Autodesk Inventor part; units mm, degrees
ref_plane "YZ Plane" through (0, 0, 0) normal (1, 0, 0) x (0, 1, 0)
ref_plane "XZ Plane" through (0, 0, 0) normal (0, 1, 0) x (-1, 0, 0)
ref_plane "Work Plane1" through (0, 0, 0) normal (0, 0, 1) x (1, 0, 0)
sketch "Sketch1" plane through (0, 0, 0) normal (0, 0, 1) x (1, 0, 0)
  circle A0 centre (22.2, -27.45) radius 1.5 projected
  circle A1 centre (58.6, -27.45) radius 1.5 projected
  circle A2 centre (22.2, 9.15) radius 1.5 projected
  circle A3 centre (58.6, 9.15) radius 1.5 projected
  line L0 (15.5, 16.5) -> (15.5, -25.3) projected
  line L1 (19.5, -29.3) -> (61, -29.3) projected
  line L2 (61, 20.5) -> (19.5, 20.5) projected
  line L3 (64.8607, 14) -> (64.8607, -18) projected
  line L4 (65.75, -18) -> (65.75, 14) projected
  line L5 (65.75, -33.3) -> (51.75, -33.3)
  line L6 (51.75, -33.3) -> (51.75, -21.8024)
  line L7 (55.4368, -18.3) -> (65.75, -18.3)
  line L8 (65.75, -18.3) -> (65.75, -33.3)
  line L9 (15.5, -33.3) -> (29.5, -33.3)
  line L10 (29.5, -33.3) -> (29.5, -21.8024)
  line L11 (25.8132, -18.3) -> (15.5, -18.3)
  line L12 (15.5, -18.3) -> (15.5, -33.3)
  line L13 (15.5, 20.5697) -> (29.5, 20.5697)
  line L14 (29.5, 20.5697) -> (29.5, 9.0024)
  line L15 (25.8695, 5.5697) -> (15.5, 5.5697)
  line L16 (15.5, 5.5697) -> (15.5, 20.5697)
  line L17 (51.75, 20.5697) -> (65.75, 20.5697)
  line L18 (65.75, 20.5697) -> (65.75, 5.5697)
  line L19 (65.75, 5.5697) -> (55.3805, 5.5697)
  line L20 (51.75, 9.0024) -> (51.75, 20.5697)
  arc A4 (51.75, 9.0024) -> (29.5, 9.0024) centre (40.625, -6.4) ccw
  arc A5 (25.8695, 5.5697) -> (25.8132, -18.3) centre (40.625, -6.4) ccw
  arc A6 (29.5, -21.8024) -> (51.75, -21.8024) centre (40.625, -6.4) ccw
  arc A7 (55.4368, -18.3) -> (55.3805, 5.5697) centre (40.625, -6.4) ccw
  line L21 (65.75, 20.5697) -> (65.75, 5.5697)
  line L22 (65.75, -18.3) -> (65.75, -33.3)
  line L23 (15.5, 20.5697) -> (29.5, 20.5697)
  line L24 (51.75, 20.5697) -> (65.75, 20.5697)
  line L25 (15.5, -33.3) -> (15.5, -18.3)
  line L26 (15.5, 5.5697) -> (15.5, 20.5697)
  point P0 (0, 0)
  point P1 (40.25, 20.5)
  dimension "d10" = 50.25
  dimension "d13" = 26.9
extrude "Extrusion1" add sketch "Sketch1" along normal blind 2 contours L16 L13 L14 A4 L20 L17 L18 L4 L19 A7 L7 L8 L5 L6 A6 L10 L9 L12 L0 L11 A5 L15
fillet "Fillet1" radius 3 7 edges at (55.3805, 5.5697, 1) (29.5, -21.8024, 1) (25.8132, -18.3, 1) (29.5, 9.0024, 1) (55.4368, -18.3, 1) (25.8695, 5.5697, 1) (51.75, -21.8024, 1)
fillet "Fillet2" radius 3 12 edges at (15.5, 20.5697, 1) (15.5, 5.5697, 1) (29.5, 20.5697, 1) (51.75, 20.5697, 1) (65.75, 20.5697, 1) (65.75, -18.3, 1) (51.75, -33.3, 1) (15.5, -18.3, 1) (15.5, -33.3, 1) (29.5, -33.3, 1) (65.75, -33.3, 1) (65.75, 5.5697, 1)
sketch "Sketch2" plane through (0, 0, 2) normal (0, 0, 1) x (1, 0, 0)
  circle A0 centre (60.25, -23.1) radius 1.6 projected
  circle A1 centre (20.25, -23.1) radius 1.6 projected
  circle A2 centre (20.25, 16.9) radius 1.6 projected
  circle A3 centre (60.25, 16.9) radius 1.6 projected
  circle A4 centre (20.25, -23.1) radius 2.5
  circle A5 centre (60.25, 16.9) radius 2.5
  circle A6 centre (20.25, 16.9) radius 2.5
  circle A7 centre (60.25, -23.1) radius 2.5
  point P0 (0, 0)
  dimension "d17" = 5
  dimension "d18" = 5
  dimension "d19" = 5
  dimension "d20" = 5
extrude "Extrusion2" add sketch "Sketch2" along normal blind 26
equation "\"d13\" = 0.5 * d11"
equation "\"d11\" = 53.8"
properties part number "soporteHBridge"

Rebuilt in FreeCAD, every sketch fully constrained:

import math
import FreeCAD as App
import Part
import Sketcher

V = App.Vector
Q = App.Units.Quantity


def edges_at(feature, points):
    """Names of the edges that pass closest to the given points."""
    edges = feature.Shape.Edges
    near = lambda p: min(range(len(edges)), key=lambda i: edges[i].distToShape(Part.Vertex(*p))[0])
    return sorted({f"Edge{near(p) + 1}" for p in points})

doc = App.newDocument("Part")
params = doc.addObject("Spreadsheet::Sheet", "Params")
for row, (alias, value) in enumerate([
    ("sketch1_diameter", "3 mm"),
    ("sketch1_radius", "19 mm"),
    ("sketch1_width", "14 mm"),
    ("sketch1_height", "15 mm"),
    ("pad1_length", "2 mm"),
    ("fillet_radius", "3 mm"),
    ("fillet2_radius", "3 mm"),
    ("sketch2_diameter", "5 mm"),
    ("sketch2_diameter2", "3.2 mm"),
    ("pad2_length", "26 mm"),
], start=1):
    params.set(f"A{row}", alias)
    params.set(f"B{row}", "=" + value)
    params.setAlias(f"B{row}", alias)

body = doc.addObject("PartDesign::Body", "Body")

sketch1 = doc.addObject("Sketcher::SketchObject", "Sketch")
body.addObject(sketch1)
sketch1.AttachmentSupport = (doc.XY_Plane, [""])
sketch1.MapMode = "FlatFace"
sketch1.addGeometry([
    Part.LineSegment(V(15.5, 20.6, 0), V(15.5, 5.6, 0)),
    Part.LineSegment(V(15.5, 5.6, 0), V(25.9, 5.6, 0)),
    Part.ArcOfCircle(Part.Circle(V(40.6, -6.4, 0), V(0, 0, 1), 19), math.radians(141), math.radians(219)),
    Part.LineSegment(V(25.8, -18.3, 0), V(15.5, -18.3, 0)),
    Part.LineSegment(V(15.5, -18.3, 0), V(15.5, -33.3, 0)),
    Part.LineSegment(V(15.5, -33.3, 0), V(29.5, -33.3, 0)),
    Part.LineSegment(V(29.5, -33.3, 0), V(29.5, -21.8, 0)),
    Part.ArcOfCircle(Part.Circle(V(40.6, -6.4, 0), V(0, 0, 1), 19), math.radians(-126), math.radians(-54)),
    Part.LineSegment(V(51.8, -21.8, 0), V(51.8, -33.3, 0)),
    Part.LineSegment(V(51.8, -33.3, 0), V(65.8, -33.3, 0)),
    Part.LineSegment(V(65.8, -33.3, 0), V(65.8, -18.3, 0)),
    Part.LineSegment(V(65.8, -18.3, 0), V(55.4, -18.3, 0)),
    Part.ArcOfCircle(Part.Circle(V(40.6, -6.4, 0), V(0, 0, 1), 19), math.radians(-39), math.radians(39)),
    Part.LineSegment(V(55.4, 5.6, 0), V(65.8, 5.6, 0)),
    Part.LineSegment(V(65.8, 5.6, 0), V(65.8, 20.6, 0)),
    Part.LineSegment(V(65.8, 20.6, 0), V(51.8, 20.6, 0)),
    Part.LineSegment(V(51.8, 20.6, 0), V(51.8, 9, 0)),
    Part.ArcOfCircle(Part.Circle(V(40.6, -6.4, 0), V(0, 0, 1), 19), math.radians(54), math.radians(126)),
    Part.LineSegment(V(29.5, 9, 0), V(29.5, 20.6, 0)),
    Part.LineSegment(V(29.5, 20.6, 0), V(15.5, 20.6, 0)),
    Part.Circle(V(22.2, -27.4, 0), V(0, 0, 1), 1.5),
    Part.Circle(V(58.6, -27.4, 0), V(0, 0, 1), 1.5),
    Part.Circle(V(22.2, 9.2, 0), V(0, 0, 1), 1.5),
    Part.Circle(V(58.6, 9.2, 0), V(0, 0, 1), 1.5),
], False)
sketch1.addConstraint([
    Sketcher.Constraint("Coincident", 0, 2, 1, 1),
    Sketcher.Constraint("Coincident", 1, 2, 2, 1),
    Sketcher.Constraint("Coincident", 2, 2, 3, 1),
    Sketcher.Constraint("Coincident", 3, 2, 4, 1),
    Sketcher.Constraint("Coincident", 4, 2, 5, 1),
    Sketcher.Constraint("Coincident", 5, 2, 6, 1),
    Sketcher.Constraint("Coincident", 6, 2, 7, 1),
    Sketcher.Constraint("Coincident", 7, 2, 8, 1),
    Sketcher.Constraint("Coincident", 8, 2, 9, 1),
    Sketcher.Constraint("Coincident", 9, 2, 10, 1),
    Sketcher.Constraint("Coincident", 10, 2, 11, 1),
    Sketcher.Constraint("Coincident", 11, 2, 12, 1),
    Sketcher.Constraint("Coincident", 12, 2, 13, 1),
    Sketcher.Constraint("Coincident", 13, 2, 14, 1),
    Sketcher.Constraint("Coincident", 14, 2, 15, 1),
    Sketcher.Constraint("Coincident", 15, 2, 16, 1),
    Sketcher.Constraint("Coincident", 16, 2, 17, 1),
    Sketcher.Constraint("Coincident", 17, 2, 18, 1),
    Sketcher.Constraint("Coincident", 18, 2, 19, 1),
    Sketcher.Constraint("Coincident", 19, 2, 0, 1),
    Sketcher.Constraint("Vertical", 0),
    Sketcher.Constraint("Horizontal", 1),
    Sketcher.Constraint("Horizontal", 3),
    Sketcher.Constraint("Vertical", 4),
    Sketcher.Constraint("Horizontal", 5),
    Sketcher.Constraint("Vertical", 6),
    Sketcher.Constraint("Vertical", 8),
    Sketcher.Constraint("Horizontal", 9),
    Sketcher.Constraint("Vertical", 10),
    Sketcher.Constraint("Horizontal", 11),
    Sketcher.Constraint("Horizontal", 13),
    Sketcher.Constraint("Vertical", 14),
    Sketcher.Constraint("Horizontal", 15),
    Sketcher.Constraint("Vertical", 16),
    Sketcher.Constraint("Vertical", 18),
    Sketcher.Constraint("Horizontal", 19),
    Sketcher.Constraint("Coincident", 7, 3, 2, 3),
    Sketcher.Constraint("Coincident", 12, 3, 2, 3),
    Sketcher.Constraint("Coincident", 17, 3, 2, 3),
    Sketcher.Constraint("Equal", 2, 7),
    Sketcher.Constraint("Equal", 7, 12),
    Sketcher.Constraint("Equal", 12, 17),
    Sketcher.Constraint("Equal", 20, 21),
    Sketcher.Constraint("Equal", 21, 22),
    Sketcher.Constraint("Equal", 22, 23),
    Sketcher.Constraint("Horizontal", 20, 3, 21, 3),
    Sketcher.Constraint("Horizontal", 22, 3, 23, 3),
    Sketcher.Constraint("Horizontal", 6, 2, 7, 2),
    Sketcher.Constraint("Horizontal", 5, 2, 8, 2),
    Sketcher.Constraint("Horizontal", 3, 2, 10, 2),
    Sketcher.Constraint("Horizontal", 1, 2, 12, 2),
    Sketcher.Constraint("Horizontal", 16, 2, 17, 2),
    Sketcher.Constraint("Horizontal", 15, 2, 18, 2),
    Sketcher.Constraint("Vertical", 20, 3, 22, 3),
    Sketcher.Constraint("Vertical", 21, 3, 23, 3),
    Sketcher.Constraint("Vertical", 0, 2, 3, 2),
    Sketcher.Constraint("Vertical", 10, 2, 13, 2),
    Sketcher.Constraint("Vertical", 8, 2, 15, 2),
    Sketcher.Constraint("Equal", 5, 9),
    Sketcher.Constraint("Equal", 0, 4),
    Sketcher.Constraint("Diameter", 20, Q("3 mm")),
    Sketcher.Constraint("Radius", 2, Q("19 mm")),
    Sketcher.Constraint("DistanceY", 4, 2, 2, 3, Q("26.9 mm")),
    Sketcher.Constraint("DistanceX", 5, 1, 5, 2, Q("14 mm")),
    Sketcher.Constraint("DistanceY", 0, 2, 0, 1, Q("15 mm")),
    Sketcher.Constraint("DistanceY", 2, 3, -1, 1, Q("6.4 mm")),
    Sketcher.Constraint("DistanceX", -1, 1, 20, 3, Q("22.2 mm")),
    Sketcher.Constraint("DistanceX", -1, 1, 21, 3, Q("58.6 mm")),
    Sketcher.Constraint("DistanceX", -1, 1, 0, 2, Q("15.5 mm")),
    Sketcher.Constraint("DistanceY", 20, 3, 22, 3, Q("36.6 mm")),
    Sketcher.Constraint("DistanceY", 20, 3, -1, 1, Q("27.45 mm")),
    Sketcher.Constraint("DistanceX", -1, 1, 7, 2, Q("51.75 mm")),
    Sketcher.Constraint("DistanceX", 1, 1, 1, 2, Q("10.3695 mm")),
])
sketch1.setExpression("Constraints[60]", "Params.sketch1_diameter")
sketch1.setExpression("Constraints[61]", "Params.sketch1_radius")
sketch1.setExpression("Constraints[63]", "Params.sketch1_width")
sketch1.setExpression("Constraints[64]", "Params.sketch1_height")
pad1 = doc.addObject("PartDesign::Pad", "Pad")
body.addObject(pad1)
pad1.Profile = sketch1
pad1.setExpression("Length", "Params.pad1_length")
doc.recompute()

fillet = doc.addObject("PartDesign::Fillet", "Fillet")
body.addObject(fillet)
fillet.Base = (pad1, edges_at(pad1, [
    (55.38, 5.57, 1),
    (29.5, -21.802, 1),
    (25.813, -18.3, 1),
    (29.5, 9.002, 1),
    (55.437, -18.3, 1),
    (25.869, 5.57, 1),
    (51.75, -21.802, 1),
]))
fillet.setExpression("Radius", "Params.fillet_radius")
doc.recompute()

fillet2 = doc.addObject("PartDesign::Fillet", "Fillet001")
body.addObject(fillet2)
fillet2.Base = (fillet, edges_at(fillet, [
    (15.5, 20.57, 1),
    (15.5, 5.57, 1),
    (29.5, 20.57, 1),
    (51.75, 20.57, 1),
    (65.75, 20.57, 1),
    (65.75, -18.3, 1),
    (51.75, -33.3, 1),
    (15.5, -18.3, 1),
    (15.5, -33.3, 1),
    (29.5, -33.3, 1),
    (65.75, -33.3, 1),
    (65.75, 5.57, 1),
]))
fillet2.setExpression("Radius", "Params.fillet2_radius")

sketch2 = doc.addObject("Sketcher::SketchObject", "Sketch001")
body.addObject(sketch2)
sketch2.AttachmentSupport = (doc.XY_Plane, [""])
sketch2.MapMode = "FlatFace"
sketch2.AttachmentOffset = App.Placement(V(0, 0, 2), App.Rotation())
sketch2.addGeometry([
    Part.Circle(V(20.2, -23.1, 0), V(0, 0, 1), 2.5),
    Part.Circle(V(20.2, -23.1, 0), V(0, 0, 1), 1.6),
    Part.Circle(V(60.2, 16.9, 0), V(0, 0, 1), 2.5),
    Part.Circle(V(60.2, 16.9, 0), V(0, 0, 1), 1.6),
    Part.Circle(V(20.2, 16.9, 0), V(0, 0, 1), 2.5),
    Part.Circle(V(20.2, 16.9, 0), V(0, 0, 1), 1.6),
    Part.Circle(V(60.2, -23.1, 0), V(0, 0, 1), 2.5),
    Part.Circle(V(60.2, -23.1, 0), V(0, 0, 1), 1.6),
], False)
sketch2.addConstraint([
    Sketcher.Constraint("Coincident", 1, 3, 0, 3),
    Sketcher.Constraint("Coincident", 3, 3, 2, 3),
    Sketcher.Constraint("Coincident", 5, 3, 4, 3),
    Sketcher.Constraint("Coincident", 7, 3, 6, 3),
    Sketcher.Constraint("Equal", 0, 2),
    Sketcher.Constraint("Equal", 1, 3),
    Sketcher.Constraint("Equal", 2, 4),
    Sketcher.Constraint("Equal", 3, 5),
    Sketcher.Constraint("Equal", 4, 6),
    Sketcher.Constraint("Equal", 5, 7),
    Sketcher.Constraint("Horizontal", 3, 3, 4, 3),
    Sketcher.Constraint("Horizontal", 1, 3, 6, 3),
    Sketcher.Constraint("Vertical", 1, 3, 4, 3),
    Sketcher.Constraint("Vertical", 3, 3, 6, 3),
    Sketcher.Constraint("Diameter", 0, Q("5 mm")),
    Sketcher.Constraint("Diameter", 1, Q("3.2 mm")),
    Sketcher.Constraint("DistanceX", 0, 3, 2, 3, Q("40 mm")),
    Sketcher.Constraint("DistanceY", 0, 3, 2, 3, Q("40 mm")),
    Sketcher.Constraint("DistanceY", 0, 3, -1, 1, Q("23.1 mm")),
    Sketcher.Constraint("DistanceX", -1, 1, 0, 3, Q("20.25 mm")),
])
sketch2.setExpression("Constraints[14]", "Params.sketch2_diameter")
sketch2.setExpression("Constraints[15]", "Params.sketch2_diameter2")
pad2 = doc.addObject("PartDesign::Pad", "Pad001")
body.addObject(pad2)
pad2.Profile = sketch2
pad2.setExpression("Length", "Params.pad2_length")

doc.recompute()
